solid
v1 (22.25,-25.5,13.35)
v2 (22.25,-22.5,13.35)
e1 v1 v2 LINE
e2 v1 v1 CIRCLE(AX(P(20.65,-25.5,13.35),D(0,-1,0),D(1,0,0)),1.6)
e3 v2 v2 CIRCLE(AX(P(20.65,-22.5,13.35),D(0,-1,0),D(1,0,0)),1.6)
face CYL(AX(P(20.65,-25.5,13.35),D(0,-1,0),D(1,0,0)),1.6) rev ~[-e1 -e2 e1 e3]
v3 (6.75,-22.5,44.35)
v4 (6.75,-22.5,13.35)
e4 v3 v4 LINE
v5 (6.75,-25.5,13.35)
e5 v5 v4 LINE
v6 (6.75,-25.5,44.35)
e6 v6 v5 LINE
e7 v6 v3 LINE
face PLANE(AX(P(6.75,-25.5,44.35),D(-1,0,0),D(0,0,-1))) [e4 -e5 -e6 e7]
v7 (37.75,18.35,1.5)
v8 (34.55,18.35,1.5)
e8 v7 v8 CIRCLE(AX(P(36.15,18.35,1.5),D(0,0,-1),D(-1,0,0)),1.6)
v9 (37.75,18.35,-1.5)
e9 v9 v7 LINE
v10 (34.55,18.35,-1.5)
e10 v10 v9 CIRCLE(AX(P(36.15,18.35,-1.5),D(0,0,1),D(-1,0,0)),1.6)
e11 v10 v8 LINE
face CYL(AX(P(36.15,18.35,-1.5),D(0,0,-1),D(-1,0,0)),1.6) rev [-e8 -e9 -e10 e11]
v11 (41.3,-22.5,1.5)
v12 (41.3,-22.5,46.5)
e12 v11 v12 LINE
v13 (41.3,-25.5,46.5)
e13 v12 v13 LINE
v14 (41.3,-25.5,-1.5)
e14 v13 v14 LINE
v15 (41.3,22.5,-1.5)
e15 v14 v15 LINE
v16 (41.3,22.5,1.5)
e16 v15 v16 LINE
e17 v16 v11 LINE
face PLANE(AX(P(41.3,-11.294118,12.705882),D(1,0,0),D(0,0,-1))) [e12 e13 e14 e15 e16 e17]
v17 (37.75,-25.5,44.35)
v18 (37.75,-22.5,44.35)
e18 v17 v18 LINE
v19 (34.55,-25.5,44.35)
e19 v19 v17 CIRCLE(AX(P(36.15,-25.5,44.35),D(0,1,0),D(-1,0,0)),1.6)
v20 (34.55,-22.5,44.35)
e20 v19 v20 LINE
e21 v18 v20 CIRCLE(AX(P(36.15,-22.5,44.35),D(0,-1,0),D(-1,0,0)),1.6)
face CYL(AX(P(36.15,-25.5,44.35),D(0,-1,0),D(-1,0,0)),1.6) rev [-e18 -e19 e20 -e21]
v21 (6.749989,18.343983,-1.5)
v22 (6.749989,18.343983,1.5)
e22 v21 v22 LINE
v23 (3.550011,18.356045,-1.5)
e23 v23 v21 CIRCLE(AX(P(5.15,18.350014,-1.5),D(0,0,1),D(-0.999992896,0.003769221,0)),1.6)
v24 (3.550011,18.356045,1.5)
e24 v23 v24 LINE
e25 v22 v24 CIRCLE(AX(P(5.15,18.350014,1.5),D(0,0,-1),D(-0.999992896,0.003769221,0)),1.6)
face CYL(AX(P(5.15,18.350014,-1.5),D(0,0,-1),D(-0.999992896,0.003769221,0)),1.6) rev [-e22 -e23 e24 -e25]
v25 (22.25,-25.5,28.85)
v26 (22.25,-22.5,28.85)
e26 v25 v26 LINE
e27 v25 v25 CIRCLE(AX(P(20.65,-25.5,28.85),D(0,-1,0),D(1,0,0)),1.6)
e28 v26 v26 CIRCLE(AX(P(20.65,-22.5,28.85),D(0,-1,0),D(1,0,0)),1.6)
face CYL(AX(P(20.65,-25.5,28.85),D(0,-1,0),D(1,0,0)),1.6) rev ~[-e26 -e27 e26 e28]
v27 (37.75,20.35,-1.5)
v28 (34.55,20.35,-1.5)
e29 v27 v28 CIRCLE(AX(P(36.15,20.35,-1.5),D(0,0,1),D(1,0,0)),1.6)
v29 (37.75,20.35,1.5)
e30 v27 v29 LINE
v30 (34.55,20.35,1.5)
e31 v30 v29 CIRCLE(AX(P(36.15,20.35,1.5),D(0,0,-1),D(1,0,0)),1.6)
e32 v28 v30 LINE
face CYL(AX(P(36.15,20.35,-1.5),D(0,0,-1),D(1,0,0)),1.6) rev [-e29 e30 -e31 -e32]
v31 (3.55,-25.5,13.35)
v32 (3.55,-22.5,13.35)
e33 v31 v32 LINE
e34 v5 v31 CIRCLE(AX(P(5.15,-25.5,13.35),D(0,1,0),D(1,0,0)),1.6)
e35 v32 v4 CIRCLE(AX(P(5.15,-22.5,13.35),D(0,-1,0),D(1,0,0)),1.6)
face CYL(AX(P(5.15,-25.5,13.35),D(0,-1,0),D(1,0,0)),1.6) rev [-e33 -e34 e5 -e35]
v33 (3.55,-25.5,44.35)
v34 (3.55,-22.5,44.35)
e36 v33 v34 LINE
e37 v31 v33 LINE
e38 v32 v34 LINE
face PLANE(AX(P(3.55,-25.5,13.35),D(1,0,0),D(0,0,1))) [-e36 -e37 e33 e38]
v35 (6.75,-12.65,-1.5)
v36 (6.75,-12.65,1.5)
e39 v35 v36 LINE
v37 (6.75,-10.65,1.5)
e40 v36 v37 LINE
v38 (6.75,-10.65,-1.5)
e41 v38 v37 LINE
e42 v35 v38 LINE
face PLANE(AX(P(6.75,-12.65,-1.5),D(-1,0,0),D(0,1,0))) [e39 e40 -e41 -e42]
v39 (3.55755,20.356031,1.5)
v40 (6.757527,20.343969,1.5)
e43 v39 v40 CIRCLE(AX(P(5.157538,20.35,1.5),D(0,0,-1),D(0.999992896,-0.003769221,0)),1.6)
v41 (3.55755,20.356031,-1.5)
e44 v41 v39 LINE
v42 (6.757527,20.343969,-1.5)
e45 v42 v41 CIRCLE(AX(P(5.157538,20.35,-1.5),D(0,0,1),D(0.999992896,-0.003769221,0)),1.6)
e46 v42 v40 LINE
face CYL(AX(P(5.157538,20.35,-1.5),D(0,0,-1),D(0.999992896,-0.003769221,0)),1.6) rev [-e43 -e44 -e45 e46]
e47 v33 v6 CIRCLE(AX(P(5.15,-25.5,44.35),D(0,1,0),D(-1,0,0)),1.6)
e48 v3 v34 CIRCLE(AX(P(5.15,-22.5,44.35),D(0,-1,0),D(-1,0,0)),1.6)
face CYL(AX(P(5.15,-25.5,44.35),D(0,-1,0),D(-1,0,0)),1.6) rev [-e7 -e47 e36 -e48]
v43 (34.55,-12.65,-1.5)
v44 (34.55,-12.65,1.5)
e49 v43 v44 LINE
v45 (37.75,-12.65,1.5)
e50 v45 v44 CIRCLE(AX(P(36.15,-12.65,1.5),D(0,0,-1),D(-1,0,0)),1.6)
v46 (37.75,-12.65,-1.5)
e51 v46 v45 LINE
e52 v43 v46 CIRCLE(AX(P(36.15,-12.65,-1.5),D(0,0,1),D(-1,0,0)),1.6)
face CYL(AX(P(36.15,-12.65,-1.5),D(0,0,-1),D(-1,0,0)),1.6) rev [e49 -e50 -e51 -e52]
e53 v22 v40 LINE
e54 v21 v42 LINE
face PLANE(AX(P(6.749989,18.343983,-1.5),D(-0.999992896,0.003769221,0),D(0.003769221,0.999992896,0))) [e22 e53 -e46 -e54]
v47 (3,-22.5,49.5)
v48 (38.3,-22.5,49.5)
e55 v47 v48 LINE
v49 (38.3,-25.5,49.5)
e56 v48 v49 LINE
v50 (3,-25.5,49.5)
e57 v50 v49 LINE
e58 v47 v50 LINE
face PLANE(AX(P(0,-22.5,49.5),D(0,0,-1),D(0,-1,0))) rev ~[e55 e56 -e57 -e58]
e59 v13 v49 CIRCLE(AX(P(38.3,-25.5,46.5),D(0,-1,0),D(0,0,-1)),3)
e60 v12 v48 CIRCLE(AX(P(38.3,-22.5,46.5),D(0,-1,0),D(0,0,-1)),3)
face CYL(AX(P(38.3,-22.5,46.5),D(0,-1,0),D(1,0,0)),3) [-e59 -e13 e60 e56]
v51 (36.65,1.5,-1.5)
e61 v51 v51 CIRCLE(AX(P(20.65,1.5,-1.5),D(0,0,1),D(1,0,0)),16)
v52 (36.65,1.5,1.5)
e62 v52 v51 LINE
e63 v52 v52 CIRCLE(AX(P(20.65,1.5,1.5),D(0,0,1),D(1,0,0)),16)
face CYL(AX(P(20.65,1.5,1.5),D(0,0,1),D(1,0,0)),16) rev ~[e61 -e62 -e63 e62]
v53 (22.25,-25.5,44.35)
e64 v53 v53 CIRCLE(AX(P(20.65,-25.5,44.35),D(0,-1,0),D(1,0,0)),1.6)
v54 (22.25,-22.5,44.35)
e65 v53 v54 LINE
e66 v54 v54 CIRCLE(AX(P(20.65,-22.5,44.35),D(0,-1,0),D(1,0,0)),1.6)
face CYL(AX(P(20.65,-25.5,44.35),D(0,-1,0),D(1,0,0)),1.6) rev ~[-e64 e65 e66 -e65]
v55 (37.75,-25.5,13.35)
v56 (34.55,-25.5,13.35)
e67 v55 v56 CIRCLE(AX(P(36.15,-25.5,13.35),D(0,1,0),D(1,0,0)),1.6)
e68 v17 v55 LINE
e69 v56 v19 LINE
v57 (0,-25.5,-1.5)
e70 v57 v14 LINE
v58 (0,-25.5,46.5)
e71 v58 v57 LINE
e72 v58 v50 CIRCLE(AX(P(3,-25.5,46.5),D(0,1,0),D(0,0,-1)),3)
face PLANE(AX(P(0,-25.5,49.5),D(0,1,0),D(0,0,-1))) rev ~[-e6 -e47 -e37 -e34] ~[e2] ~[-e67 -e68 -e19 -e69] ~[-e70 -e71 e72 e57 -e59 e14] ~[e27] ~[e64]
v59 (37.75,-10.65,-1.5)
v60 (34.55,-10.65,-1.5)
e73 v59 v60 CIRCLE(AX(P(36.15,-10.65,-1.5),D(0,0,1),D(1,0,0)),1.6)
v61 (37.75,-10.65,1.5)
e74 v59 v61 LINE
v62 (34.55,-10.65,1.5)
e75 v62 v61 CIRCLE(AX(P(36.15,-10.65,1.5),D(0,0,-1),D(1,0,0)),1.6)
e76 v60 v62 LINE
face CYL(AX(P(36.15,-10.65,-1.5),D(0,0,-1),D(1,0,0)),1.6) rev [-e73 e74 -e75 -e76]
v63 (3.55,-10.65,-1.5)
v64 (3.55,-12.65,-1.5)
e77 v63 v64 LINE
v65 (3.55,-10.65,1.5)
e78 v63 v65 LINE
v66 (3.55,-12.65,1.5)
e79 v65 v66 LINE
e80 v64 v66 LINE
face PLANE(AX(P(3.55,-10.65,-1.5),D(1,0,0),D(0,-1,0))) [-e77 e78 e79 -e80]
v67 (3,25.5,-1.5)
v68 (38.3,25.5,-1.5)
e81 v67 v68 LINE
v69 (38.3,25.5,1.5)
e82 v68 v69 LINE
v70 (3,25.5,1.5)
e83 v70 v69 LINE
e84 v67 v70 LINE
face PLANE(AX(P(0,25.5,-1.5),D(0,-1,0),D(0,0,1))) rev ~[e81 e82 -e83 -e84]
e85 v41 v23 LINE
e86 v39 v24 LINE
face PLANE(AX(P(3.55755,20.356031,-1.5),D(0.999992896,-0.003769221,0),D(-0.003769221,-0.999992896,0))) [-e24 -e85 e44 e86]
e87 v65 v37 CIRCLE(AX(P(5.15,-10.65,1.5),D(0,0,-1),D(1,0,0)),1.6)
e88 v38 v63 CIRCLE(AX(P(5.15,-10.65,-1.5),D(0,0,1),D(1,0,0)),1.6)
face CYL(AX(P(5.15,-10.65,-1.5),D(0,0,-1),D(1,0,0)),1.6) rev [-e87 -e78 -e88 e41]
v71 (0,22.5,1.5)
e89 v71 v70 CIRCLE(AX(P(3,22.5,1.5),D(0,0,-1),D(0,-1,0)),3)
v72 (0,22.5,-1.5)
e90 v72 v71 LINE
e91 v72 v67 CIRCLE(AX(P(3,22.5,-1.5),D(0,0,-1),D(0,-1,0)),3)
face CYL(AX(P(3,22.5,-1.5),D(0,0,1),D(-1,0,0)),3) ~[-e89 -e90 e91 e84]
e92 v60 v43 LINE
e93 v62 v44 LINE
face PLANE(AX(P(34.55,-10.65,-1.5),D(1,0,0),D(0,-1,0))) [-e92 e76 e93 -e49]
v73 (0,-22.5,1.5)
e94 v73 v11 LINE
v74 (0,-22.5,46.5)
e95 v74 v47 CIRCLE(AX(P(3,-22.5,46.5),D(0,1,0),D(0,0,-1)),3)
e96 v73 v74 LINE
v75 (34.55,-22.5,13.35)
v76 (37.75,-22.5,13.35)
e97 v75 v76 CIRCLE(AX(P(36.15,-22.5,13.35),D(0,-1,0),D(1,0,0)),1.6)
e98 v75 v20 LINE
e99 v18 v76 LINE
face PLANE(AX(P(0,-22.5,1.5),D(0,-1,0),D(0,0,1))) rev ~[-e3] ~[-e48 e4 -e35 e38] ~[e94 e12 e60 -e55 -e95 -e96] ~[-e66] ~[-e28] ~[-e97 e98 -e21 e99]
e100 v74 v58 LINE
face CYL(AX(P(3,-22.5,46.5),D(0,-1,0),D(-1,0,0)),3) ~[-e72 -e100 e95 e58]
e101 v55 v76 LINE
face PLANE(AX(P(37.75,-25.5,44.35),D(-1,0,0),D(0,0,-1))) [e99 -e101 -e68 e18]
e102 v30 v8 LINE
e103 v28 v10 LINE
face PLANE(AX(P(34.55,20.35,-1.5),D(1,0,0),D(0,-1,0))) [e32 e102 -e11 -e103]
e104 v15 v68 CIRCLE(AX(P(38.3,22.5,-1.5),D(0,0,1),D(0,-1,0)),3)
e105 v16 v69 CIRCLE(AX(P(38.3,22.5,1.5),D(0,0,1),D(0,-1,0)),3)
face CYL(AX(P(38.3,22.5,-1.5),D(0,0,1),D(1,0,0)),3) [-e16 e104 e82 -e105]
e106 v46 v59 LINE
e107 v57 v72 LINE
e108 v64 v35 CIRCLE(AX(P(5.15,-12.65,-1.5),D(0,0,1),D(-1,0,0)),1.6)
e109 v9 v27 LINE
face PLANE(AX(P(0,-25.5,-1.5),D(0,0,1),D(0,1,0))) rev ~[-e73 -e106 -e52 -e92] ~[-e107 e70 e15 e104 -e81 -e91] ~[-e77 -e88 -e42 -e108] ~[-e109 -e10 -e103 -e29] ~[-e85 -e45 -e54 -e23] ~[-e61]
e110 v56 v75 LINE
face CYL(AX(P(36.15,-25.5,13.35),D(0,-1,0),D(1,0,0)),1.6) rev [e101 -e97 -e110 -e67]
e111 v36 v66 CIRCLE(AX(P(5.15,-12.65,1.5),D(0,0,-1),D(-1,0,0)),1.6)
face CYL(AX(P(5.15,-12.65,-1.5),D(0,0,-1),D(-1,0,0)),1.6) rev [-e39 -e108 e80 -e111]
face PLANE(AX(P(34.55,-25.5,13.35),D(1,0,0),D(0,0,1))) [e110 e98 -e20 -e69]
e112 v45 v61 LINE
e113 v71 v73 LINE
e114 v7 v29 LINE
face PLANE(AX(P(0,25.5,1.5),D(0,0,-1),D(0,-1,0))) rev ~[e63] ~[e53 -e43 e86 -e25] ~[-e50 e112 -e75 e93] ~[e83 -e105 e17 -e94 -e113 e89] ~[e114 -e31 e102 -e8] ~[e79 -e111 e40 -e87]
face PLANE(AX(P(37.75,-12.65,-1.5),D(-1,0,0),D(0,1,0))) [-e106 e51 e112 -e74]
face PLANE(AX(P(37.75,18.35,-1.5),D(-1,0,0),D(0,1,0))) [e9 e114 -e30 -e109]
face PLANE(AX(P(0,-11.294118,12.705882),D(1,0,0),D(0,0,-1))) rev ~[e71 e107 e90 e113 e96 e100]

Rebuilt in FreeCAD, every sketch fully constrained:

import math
import FreeCAD as App
import Part
import Sketcher
from FreeCAD import Vector


def edges_at(feature, points):
    """Names of the edges that pass closest to the given points."""
    edges = feature.Shape.Edges
    near = lambda p: min(range(len(edges)), key=lambda i: edges[i].distToShape(Part.Vertex(*p))[0])
    return sorted({f"Edge{near(p) + 1}" for p in points})


def add_polygon(sketch, points):
    """Adds a closed chain of lines whose ends are joined by coincident constraints."""
    first, n = sketch.GeometryCount, len(points)
    for a, b in zip(points, points[1:] + points[:1]):
        sketch.addGeometry(Part.LineSegment(App.Vector(*a, 0), App.Vector(*b, 0)), False)
    for i in range(n):
        sketch.addConstraint(Sketcher.Constraint("Coincident", first + i, 2, first + (i + 1) % n, 1))

doc = App.newDocument("Part")
params = doc.addObject("Spreadsheet::Sheet", "Params")
for row, (alias, value) in enumerate([
    ("sketch1_width", "3 mm"),
    ("sketch1_width2", "51 mm"),
    ("pad1_length", "41.3 mm"),
    ("sketch2_diameter", "32 mm"),
    ("pocket1_length", "41.3 mm"),
    ("sketch3_radius", "1.6 mm"),
    ("sketch3_height", "2 mm"),
    ("sketch3_length", "2 mm"),
    ("pocket2_length", "41.3 mm"),
    ("sketch4_diameter", "3.2 mm"),
    ("sketch4_height", "31 mm"),
    ("pocket3_length", "41.3 mm"),
    ("fillet_radius", "3 mm"),
], start=1):
    params.set(f"A{row}", alias)
    params.set(f"B{row}", "=" + value)
    params.setAlias(f"B{row}", alias)

body = doc.addObject("PartDesign::Body", "Body")

# Sketch on YZ plane
sketch1 = body.newObject("Sketcher::SketchObject", "Sketch")
sketch1.AttachmentSupport = (doc.getObject("YZ_Plane"), [""])
sketch1.MapMode = "FlatFace"
add_polygon(sketch1, [(-22.5, 1.5), (-22.5, 49.5), (-25.5, 49.5), (-25.5, -1.5), (25.5, -1.5), (25.5, 1.5)])  # lines 0-5
sketch1.addConstraint([
    Sketcher.Constraint("Vertical", 0),
    Sketcher.Constraint("Horizontal", 1),
    Sketcher.Constraint("Vertical", 2),
    Sketcher.Constraint("Horizontal", 3),
    Sketcher.Constraint("Vertical", 4),
    Sketcher.Constraint("Horizontal", 5),
    Sketcher.Constraint("Symmetric", 2, 2, 4, 2, -1, 1),
    Sketcher.Constraint("Equal", 5, 0),
    Sketcher.Constraint("Equal", 3, 2),
    Sketcher.Constraint("DistanceX", 1, 2, 1, 1, 3.0),
    Sketcher.Constraint("DistanceX", 3, 1, 3, 2, 51.0),
])
sketch1.setExpression("Constraints[15]", "Params.sketch1_width")
sketch1.setExpression("Constraints[16]", "Params.sketch1_width2")
pad1 = body.newObject("PartDesign::Pad", "Pad")
pad1.Profile = sketch1
pad1.setExpression("Length", "Params.pad1_length")

# Sketch on XY plane
sketch2 = body.newObject("Sketcher::SketchObject", "Sketch001")
sketch2.AttachmentSupport = (doc.getObject("XY_Plane"), [""])
sketch2.MapMode = "FlatFace"
sketch2.AttachmentOffset = App.Placement(Vector(0, 0, 1.5), App.Rotation())
sketch2.addGeometry(Part.Circle(Vector(21, 2, 0), Vector(0, 0, 1), 16), False)
sketch2.addConstraint([
    Sketcher.Constraint("Diameter", 0, 32.0),
    Sketcher.Constraint("DistanceY", -1, 1, 0, 3, 1.5),
    Sketcher.Constraint("DistanceX", -1, 1, 0, 3, 20.65),
])
sketch2.setExpression("Constraints[0]", "Params.sketch2_diameter")
pocket1 = body.newObject("PartDesign::Pocket", "Pocket")
pocket1.Profile = sketch2
pocket1.setExpression("Length", "Params.pocket1_length")

# Sketch on XY plane
sketch3 = body.newObject("Sketcher::SketchObject", "Sketch002")
sketch3.AttachmentSupport = (doc.getObject("XY_Plane"), [""])
sketch3.MapMode = "FlatFace"
sketch3.AttachmentOffset = App.Placement(Vector(0, 0, -1.5), App.Rotation())
sketch3.addGeometry([
    Part.LineSegment(Vector(3.6, 18.4, 0), Vector(3.6, 20.4, 0)),  # 0
    Part.ArcOfCircle(Part.Circle(Vector(5.2, 20.4, 0), Vector(0, 0, 1), 1.6), math.radians(0), math.radians(180)),  # 1
    Part.LineSegment(Vector(6.8, 20.3, 0), Vector(6.7, 18.3, 0)),  # 2
    Part.ArcOfCircle(Part.Circle(Vector(5.2, 18.4, 0), Vector(0, 0, 1), 1.6), math.radians(180), math.radians(360)),  # 3
    Part.LineSegment(Vector(34.5, 18.4, 0), Vector(34.5, 20.4, 0)),  # 4
    Part.ArcOfCircle(Part.Circle(Vector(36.1, 20.4, 0), Vector(0, 0, 1), 1.6), math.radians(0), math.radians(180)),  # 5
    Part.LineSegment(Vector(37.8, 20.4, 0), Vector(37.8, 18.4, 0)),  # 6
    Part.ArcOfCircle(Part.Circle(Vector(36.1, 18.4, 0), Vector(0, 0, 1), 1.6), math.radians(180), math.radians(360)),  # 7
    Part.LineSegment(Vector(3.5, -12.7, 0), Vector(3.5, -10.7, 0)),  # 8
    Part.ArcOfCircle(Part.Circle(Vector(5.2, -10.7, 0), Vector(0, 0, 1), 1.6), math.radians(0), math.radians(180)),  # 9
    Part.LineSegment(Vector(6.8, -10.7, 0), Vector(6.8, -12.7, 0)),  # 10
    Part.ArcOfCircle(Part.Circle(Vector(5.2, -12.7, 0), Vector(0, 0, 1), 1.6), math.radians(180), math.radians(360)),  # 11
    Part.LineSegment(Vector(34.5, -12.7, 0), Vector(34.5, -10.7, 0)),  # 12
    Part.ArcOfCircle(Part.Circle(Vector(36.1, -10.7, 0), Vector(0, 0, 1), 1.6), math.radians(0), math.radians(180)),  # 13
    Part.LineSegment(Vector(37.8, -10.7, 0), Vector(37.8, -12.7, 0)),  # 14
    Part.ArcOfCircle(Part.Circle(Vector(36.1, -12.7, 0), Vector(0, 0, 1), 1.6), math.radians(180), math.radians(360)),  # 15
], False)
sketch3.addConstraint([
    Sketcher.Constraint("Tangent", 0, 2, 1, 2),
    Sketcher.Constraint("Tangent", 1, 1, 2, 1),
    Sketcher.Constraint("Tangent", 2, 2, 3, 2),
    Sketcher.Constraint("Tangent", 3, 1, 0, 1),
    Sketcher.Constraint("Tangent", 4, 2, 5, 2),
    Sketcher.Constraint("Tangent", 5, 1, 6, 1),
    Sketcher.Constraint("Tangent", 6, 2, 7, 2),
    Sketcher.Constraint("Tangent", 7, 1, 4, 1),
    Sketcher.Constraint("Tangent", 8, 2, 9, 2),
    Sketcher.Constraint("Tangent", 9, 1, 10, 1),
    Sketcher.Constraint("Tangent", 10, 2, 11, 2),
    Sketcher.Constraint("Tangent", 11, 1, 8, 1),
    Sketcher.Constraint("Tangent", 12, 2, 13, 2),
    Sketcher.Constraint("Tangent", 13, 1, 14, 1),
    Sketcher.Constraint("Tangent", 14, 2, 15, 2),
    Sketcher.Constraint("Tangent", 15, 1, 12, 1),
    Sketcher.Constraint("Vertical", 4),
    Sketcher.Constraint("Vertical", 6),
    Sketcher.Constraint("Vertical", 8),
    Sketcher.Constraint("Vertical", 10),
    Sketcher.Constraint("Vertical", 12),
    Sketcher.Constraint("Vertical", 14),
    Sketcher.Constraint("Equal", 1, 3),
    Sketcher.Constraint("Equal", 3, 5),
    Sketcher.Constraint("Equal", 7, 9),
    Sketcher.Constraint("Equal", 11, 13),
    Sketcher.Constraint("Horizontal", 1, 3, 5, 3),
    Sketcher.Constraint("Horizontal", 9, 3, 13, 3),
    Sketcher.Constraint("Horizontal", 11, 3, 15, 3),
    Sketcher.Constraint("Vertical", 3, 3, 9, 3),
    Sketcher.Constraint("Vertical", 7, 3, 13, 3),
    Sketcher.Constraint("Equal", 6, 8),
    Sketcher.Constraint("Radius", 1, 1.6),
    Sketcher.Constraint("DistanceY", 4, 1, 4, 2, 2.0),
    Sketcher.Constraint("Distance", 0, 2.0),
    Sketcher.Constraint("DistanceX", 3, 3, 5, 3, 31.0),
    Sketcher.Constraint("DistanceY", 9, 3, 1, 3, 31.0),
    Sketcher.Constraint("DistanceY", -1, 1, 1, 3, 20.35),
    Sketcher.Constraint("DistanceX", -1, 1, 3, 3, 5.15),
    Sketcher.Constraint("DistanceX", -1, 1, 1, 3, 5.157538),
])
sketch3.setExpression("Constraints[32]", "Params.sketch3_radius")
sketch3.setExpression("Constraints[33]", "Params.sketch3_height")
sketch3.setExpression("Constraints[34]", "Params.sketch3_length")
pocket2 = body.newObject("PartDesign::Pocket", "Pocket001")
pocket2.Profile = sketch3
pocket2.setExpression("Length", "Params.pocket2_length")
pocket2.Reversed = True

# Sketch on XZ plane
sketch4 = body.newObject("Sketcher::SketchObject", "Sketch003")
sketch4.AttachmentSupport = (doc.getObject("XZ_Plane"), [""])
sketch4.MapMode = "FlatFace"
sketch4.AttachmentOffset = App.Placement(Vector(0, 0, 25.5), App.Rotation())
sketch4.addGeometry([
    Part.Circle(Vector(20.6, 44.4, 0), Vector(0, 0, 1), 1.6),  # 0
    Part.Circle(Vector(20.6, 13.3, 0), Vector(0, 0, 1), 1.6),  # 1
    Part.Circle(Vector(20.6, 28.9, 0), Vector(0, 0, 1), 1.6),  # 2
    Part.LineSegment(Vector(37.8, 13.3, 0), Vector(37.8, 44.4, 0)),  # 3
    Part.ArcOfCircle(Part.Circle(Vector(36.1, 44.4, 0), Vector(0, 0, 1), 1.6), math.radians(0), math.radians(180)),  # 4
    Part.LineSegment(Vector(34.5, 44.4, 0), Vector(34.5, 13.3, 0)),  # 5
    Part.ArcOfCircle(Part.Circle(Vector(36.1, 13.3, 0), Vector(0, 0, 1), 1.6), math.radians(180), math.radians(360)),  # 6
    Part.LineSegment(Vector(6.8, 13.3, 0), Vector(6.8, 44.4, 0)),  # 7
    Part.ArcOfCircle(Part.Circle(Vector(5.2, 44.4, 0), Vector(0, 0, 1), 1.6), math.radians(0), math.radians(180)),  # 8
    Part.LineSegment(Vector(3.5, 44.4, 0), Vector(3.5, 13.3, 0)),  # 9
    Part.ArcOfCircle(Part.Circle(Vector(5.2, 13.3, 0), Vector(0, 0, 1), 1.6), math.radians(180), math.radians(360)),  # 10
], False)
sketch4.addConstraint([
    Sketcher.Constraint("Tangent", 3, 2, 4, 1),
    Sketcher.Constraint("Tangent", 4, 2, 5, 1),
    Sketcher.Constraint("Tangent", 5, 2, 6, 1),
    Sketcher.Constraint("Tangent", 6, 2, 3, 1),
    Sketcher.Constraint("Tangent", 7, 2, 8, 1),
    Sketcher.Constraint("Tangent", 8, 2, 9, 1),
    Sketcher.Constraint("Tangent", 9, 2, 10, 1),
    Sketcher.Constraint("Tangent", 10, 2, 7, 1),
    Sketcher.Constraint("Vertical", 3),
    Sketcher.Constraint("Vertical", 5),
    Sketcher.Constraint("Vertical", 7),
    Sketcher.Constraint("Vertical", 9),
    Sketcher.Constraint("Equal", 0, 1),
    Sketcher.Constraint("Equal", 1, 2),
    Sketcher.Constraint("Equal", 2, 4),
    Sketcher.Constraint("Equal", 6, 8),
    Sketcher.Constraint("Horizontal", 0, 3, 4, 3),
    Sketcher.Constraint("Horizontal", 1, 3, 6, 3),
    Sketcher.Constraint("Horizontal", 4, 3, 8, 3),
    Sketcher.Constraint("Horizontal", 6, 3, 10, 3),
    Sketcher.Constraint("Vertical", 0, 3, 1, 3),
    Sketcher.Constraint("Vertical", 1, 3, 2, 3),
    Sketcher.Constraint("Diameter", 0, 3.2),
    Sketcher.Constraint("DistanceY", 3, 1, 3, 2, 31.0),
    Sketcher.Constraint("DistanceX", 8, 3, 4, 3, 31.0),
    Sketcher.Constraint("DistanceY", 2, 3, 0, 3, 15.5),
    Sketcher.Constraint("DistanceX", 0, 3, 4, 3, 15.5),
    Sketcher.Constraint("DistanceX", -1, 1, 0, 3, 20.65),
    Sketcher.Constraint("DistanceY", -1, 1, 0, 3, 44.35),
])
sketch4.setExpression("Constraints[22]", "Params.sketch4_diameter")
sketch4.setExpression("Constraints[23]", "Params.sketch4_height")
pocket3 = body.newObject("PartDesign::Pocket", "Pocket002")
pocket3.Profile = sketch4
pocket3.setExpression("Length", "Params.pocket3_length")
doc.recompute()

fillet = body.newObject("PartDesign::Fillet", "Fillet")
fillet.Base = (pocket3, edges_at(pocket3, [
    (41.3, 25.5, 0),
    (41.3, -24, 49.5),
    (0, -24, 49.5),
    (0, 25.5, 0),
]))
fillet.setExpression("Radius", "Params.fillet_radius")

doc.recompute()
